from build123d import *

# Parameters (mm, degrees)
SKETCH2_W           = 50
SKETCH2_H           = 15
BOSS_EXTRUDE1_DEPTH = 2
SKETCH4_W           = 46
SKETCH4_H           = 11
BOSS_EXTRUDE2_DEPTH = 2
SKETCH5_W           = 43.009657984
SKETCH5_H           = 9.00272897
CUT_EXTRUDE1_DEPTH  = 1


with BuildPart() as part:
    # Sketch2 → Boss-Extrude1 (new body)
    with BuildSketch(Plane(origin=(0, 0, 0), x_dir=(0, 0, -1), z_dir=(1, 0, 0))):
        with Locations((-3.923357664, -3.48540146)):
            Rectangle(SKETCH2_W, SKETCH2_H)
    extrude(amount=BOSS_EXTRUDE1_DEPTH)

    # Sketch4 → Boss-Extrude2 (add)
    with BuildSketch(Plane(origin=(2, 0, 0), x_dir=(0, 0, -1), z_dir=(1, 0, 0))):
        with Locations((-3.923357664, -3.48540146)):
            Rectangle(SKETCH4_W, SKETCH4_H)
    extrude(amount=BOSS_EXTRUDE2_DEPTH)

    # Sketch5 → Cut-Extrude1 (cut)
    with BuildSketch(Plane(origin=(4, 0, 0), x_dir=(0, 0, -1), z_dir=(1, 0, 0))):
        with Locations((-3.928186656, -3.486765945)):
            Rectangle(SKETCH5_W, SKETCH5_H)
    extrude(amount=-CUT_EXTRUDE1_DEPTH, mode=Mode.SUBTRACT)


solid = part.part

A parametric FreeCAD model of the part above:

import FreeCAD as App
import Part
import Sketcher

V = App.Vector
Q = App.Units.Quantity


def add_polygon(sketch, points):
    """Adds a closed chain of lines whose ends are joined by coincident constraints."""
    first, n = sketch.GeometryCount, len(points)
    for a, b in zip(points, points[1:] + points[:1]):
        sketch.addGeometry(Part.LineSegment(App.Vector(*a, 0), App.Vector(*b, 0)), False)
    for i in range(n):
        sketch.addConstraint(Sketcher.Constraint("Coincident", first + i, 2, first + (i + 1) % n, 1))

doc = App.newDocument("Part")
body = doc.addObject("PartDesign::Body", "Body")

sketch1 = doc.addObject("Sketcher::SketchObject", "Sketch")
body.addObject(sketch1)
sketch1.AttachmentSupport = (doc.YZ_Plane, [""])
sketch1.MapMode = "FlatFace"
add_polygon(sketch1, [(4, 29), (-11, 29), (-11, -21), (4, -21)])
sketch1.addConstraint([
    Sketcher.Constraint("Horizontal", 0),
    Sketcher.Constraint("Vertical", 1),
    Sketcher.Constraint("Horizontal", 2),
    Sketcher.Constraint("Vertical", 3),
    Sketcher.Constraint("DistanceX", 0, 2, 0, 1, Q("15 mm")),
    Sketcher.Constraint("DistanceY", 1, 2, 1, 1, Q("50 mm")),
    Sketcher.Constraint("DistanceX", 0, 2, -1, 1, Q("10.985401 mm")),
    Sketcher.Constraint("DistanceY", -1, 1, 0, 2, Q("28.923358 mm")),
])
pad1 = doc.addObject("PartDesign::Pad", "Pad")
body.addObject(pad1)
pad1.Profile = sketch1
pad1.Length = 2

sketch2 = doc.addObject("Sketcher::SketchObject", "Sketch001")
body.addObject(sketch2)
sketch2.AttachmentSupport = (doc.YZ_Plane, [""])
sketch2.MapMode = "FlatFace"
sketch2.AttachmentOffset = App.Placement(V(0, 0, 2), App.Rotation())
add_polygon(sketch2, [(2, 27), (-9, 27), (-9, -19), (2, -19)])
sketch2.addConstraint([
    Sketcher.Constraint("Horizontal", 0),
    Sketcher.Constraint("Vertical", 1),
    Sketcher.Constraint("Horizontal", 2),
    Sketcher.Constraint("Vertical", 3),
    Sketcher.Constraint("DistanceX", 0, 2, 0, 1, Q("11 mm")),
    Sketcher.Constraint("DistanceY", 1, 2, 1, 1, Q("46 mm")),
    Sketcher.Constraint("DistanceX", 0, 2, -1, 1, Q("8.985401 mm")),
    Sketcher.Constraint("DistanceY", -1, 1, 0, 2, Q("26.923358 mm")),
])
pad2 = doc.addObject("PartDesign::Pad", "Pad001")
body.addObject(pad2)
pad2.Profile = sketch2
pad2.Length = 2

sketch3 = doc.addObject("Sketcher::SketchObject", "Sketch002")
body.addObject(sketch3)
sketch3.AttachmentSupport = (doc.YZ_Plane, [""])
sketch3.MapMode = "FlatFace"
sketch3.AttachmentOffset = App.Placement(V(0, 0, 4), App.Rotation())
add_polygon(sketch3, [(1, 25), (-8, 25), (-8, -18), (1, -18)])
sketch3.addConstraint([
    Sketcher.Constraint("Horizontal", 0),
    Sketcher.Constraint("Vertical", 1),
    Sketcher.Constraint("Horizontal", 2),
    Sketcher.Constraint("Vertical", 3),
    Sketcher.Constraint("DistanceX", 0, 2, 0, 1, Q("9.002729 mm")),
    Sketcher.Constraint("DistanceX", -1, 1, 2, 2, Q("1.014599 mm")),
    Sketcher.Constraint("DistanceY", 1, 2, 1, 1, Q("43.009658 mm")),
    Sketcher.Constraint("DistanceY", -1, 1, 0, 2, Q("25.433016 mm")),
])
pocket1 = doc.addObject("PartDesign::Pocket", "Pocket")
body.addObject(pocket1)
pocket1.Profile = sketch3
pocket1.Length = 1

doc.recompute()
